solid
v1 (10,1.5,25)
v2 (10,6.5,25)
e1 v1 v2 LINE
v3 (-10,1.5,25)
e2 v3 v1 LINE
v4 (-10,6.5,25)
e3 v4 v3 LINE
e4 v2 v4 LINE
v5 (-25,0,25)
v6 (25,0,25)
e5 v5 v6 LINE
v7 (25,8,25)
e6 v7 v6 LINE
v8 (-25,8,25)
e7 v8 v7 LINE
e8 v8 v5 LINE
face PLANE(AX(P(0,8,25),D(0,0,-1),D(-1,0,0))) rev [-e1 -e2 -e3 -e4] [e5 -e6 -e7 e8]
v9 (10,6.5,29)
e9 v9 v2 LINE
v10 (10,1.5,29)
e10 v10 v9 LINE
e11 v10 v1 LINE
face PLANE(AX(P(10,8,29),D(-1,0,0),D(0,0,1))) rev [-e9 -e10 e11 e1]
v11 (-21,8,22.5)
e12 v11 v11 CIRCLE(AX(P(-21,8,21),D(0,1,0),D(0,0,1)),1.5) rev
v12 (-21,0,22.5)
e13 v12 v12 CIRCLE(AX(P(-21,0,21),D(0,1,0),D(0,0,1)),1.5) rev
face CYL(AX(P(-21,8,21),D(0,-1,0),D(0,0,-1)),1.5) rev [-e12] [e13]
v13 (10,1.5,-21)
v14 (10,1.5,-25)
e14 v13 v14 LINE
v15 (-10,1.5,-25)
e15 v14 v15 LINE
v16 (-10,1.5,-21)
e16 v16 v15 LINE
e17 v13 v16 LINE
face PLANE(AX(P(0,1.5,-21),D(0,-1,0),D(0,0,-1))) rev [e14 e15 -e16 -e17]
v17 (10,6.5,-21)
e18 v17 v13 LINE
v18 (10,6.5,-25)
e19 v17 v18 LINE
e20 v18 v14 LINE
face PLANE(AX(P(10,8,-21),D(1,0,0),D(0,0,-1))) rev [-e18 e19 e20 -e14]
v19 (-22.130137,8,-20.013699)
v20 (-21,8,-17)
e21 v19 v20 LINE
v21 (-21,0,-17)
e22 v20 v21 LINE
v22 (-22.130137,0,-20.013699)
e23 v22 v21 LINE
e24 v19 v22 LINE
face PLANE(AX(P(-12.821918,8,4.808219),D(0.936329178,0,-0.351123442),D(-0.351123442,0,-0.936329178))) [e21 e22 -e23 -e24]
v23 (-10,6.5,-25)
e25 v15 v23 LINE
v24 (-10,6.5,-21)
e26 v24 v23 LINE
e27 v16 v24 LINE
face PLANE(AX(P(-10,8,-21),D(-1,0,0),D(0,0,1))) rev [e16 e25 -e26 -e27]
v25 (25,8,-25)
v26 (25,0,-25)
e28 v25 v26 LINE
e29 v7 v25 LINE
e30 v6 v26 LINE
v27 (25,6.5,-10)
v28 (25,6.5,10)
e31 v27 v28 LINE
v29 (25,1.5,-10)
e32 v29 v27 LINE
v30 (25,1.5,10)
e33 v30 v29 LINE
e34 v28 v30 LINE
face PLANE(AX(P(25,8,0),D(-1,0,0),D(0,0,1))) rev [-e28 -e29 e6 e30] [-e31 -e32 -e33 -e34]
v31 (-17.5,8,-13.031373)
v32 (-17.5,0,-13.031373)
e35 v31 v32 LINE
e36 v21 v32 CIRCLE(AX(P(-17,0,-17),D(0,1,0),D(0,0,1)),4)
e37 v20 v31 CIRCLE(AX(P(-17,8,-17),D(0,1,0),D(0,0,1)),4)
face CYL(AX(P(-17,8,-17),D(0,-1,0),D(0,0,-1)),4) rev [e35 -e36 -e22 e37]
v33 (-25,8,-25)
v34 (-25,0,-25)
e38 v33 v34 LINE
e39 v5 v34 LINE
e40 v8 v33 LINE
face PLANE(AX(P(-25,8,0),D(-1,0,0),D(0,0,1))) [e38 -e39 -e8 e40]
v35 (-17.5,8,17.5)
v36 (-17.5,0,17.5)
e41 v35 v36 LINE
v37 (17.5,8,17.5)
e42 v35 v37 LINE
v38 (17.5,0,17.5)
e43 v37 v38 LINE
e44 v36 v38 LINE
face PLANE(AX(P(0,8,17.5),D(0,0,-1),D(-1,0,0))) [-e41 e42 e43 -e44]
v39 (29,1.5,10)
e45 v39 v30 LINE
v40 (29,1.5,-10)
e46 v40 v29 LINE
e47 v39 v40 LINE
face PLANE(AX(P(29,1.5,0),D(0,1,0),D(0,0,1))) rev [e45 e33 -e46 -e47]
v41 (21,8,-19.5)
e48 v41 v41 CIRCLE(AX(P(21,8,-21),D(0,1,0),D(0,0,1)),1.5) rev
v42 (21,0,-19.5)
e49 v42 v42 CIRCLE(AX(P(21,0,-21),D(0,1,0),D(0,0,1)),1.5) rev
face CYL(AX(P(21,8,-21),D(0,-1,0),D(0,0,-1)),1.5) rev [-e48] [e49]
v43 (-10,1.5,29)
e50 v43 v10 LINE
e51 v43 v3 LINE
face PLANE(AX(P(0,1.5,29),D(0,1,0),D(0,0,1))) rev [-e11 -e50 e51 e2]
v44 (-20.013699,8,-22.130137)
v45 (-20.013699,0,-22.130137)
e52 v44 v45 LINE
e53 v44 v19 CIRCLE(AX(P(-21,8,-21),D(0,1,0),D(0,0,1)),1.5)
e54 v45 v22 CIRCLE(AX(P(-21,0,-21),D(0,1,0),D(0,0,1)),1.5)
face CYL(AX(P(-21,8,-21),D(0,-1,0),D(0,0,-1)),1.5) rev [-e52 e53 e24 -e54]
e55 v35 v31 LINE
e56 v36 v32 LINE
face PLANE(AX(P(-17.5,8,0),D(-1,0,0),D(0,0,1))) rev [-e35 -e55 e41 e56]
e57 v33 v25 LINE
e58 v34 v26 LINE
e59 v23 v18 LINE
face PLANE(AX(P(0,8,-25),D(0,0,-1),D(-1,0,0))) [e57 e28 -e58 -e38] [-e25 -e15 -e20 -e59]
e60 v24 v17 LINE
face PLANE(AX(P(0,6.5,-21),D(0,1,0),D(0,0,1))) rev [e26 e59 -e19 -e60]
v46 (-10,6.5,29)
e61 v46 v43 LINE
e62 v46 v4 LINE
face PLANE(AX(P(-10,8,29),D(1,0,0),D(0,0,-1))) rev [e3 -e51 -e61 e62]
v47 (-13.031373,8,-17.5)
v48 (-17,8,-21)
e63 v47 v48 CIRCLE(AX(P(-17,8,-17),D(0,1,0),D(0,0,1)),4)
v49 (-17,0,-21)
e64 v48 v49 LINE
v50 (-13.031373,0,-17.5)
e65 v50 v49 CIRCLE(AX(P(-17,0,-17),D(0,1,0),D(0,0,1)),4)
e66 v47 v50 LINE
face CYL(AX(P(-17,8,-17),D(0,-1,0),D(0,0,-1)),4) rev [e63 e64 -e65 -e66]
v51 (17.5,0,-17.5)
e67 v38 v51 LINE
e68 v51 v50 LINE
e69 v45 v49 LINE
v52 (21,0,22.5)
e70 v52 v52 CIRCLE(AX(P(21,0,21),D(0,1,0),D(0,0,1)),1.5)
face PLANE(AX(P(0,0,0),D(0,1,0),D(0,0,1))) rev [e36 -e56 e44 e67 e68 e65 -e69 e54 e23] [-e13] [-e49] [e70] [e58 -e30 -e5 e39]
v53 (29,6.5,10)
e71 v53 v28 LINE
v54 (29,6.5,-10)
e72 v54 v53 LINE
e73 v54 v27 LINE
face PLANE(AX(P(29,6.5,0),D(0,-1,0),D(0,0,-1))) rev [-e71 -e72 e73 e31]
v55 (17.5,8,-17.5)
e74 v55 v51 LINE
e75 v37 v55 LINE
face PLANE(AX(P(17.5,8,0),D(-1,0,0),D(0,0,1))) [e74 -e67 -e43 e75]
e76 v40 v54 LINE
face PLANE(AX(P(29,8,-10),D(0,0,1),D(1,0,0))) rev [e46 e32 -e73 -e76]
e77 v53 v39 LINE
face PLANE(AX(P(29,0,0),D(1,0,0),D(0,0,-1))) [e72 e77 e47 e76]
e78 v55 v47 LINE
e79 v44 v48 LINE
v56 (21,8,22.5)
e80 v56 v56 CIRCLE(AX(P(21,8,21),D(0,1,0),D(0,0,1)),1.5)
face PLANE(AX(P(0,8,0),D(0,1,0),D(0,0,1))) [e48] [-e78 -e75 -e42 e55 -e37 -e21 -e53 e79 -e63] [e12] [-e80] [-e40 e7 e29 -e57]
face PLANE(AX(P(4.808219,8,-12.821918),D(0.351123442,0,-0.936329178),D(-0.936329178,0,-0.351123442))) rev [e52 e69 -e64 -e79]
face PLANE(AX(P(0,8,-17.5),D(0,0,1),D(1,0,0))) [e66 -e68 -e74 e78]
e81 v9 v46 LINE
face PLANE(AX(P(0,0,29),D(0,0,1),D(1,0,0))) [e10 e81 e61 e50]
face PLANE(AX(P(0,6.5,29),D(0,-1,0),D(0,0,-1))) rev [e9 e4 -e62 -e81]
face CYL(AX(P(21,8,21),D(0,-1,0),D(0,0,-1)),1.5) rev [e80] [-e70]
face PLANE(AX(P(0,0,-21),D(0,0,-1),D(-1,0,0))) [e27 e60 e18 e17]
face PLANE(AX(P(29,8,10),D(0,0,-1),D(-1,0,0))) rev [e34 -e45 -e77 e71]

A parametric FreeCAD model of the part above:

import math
import FreeCAD as App
import Part
import Sketcher

V = App.Vector

doc = App.newDocument("Part")
body = doc.addObject("PartDesign::Body", "Body")

sketch1 = body.newObject("Sketcher::SketchObject", "Sketch")
sketch1.AttachmentSupport = (doc.getObject("XZ_Plane"), [""])
sketch1.MapMode = "FlatFace"
sketch1.addGeometry([
    Part.LineSegment(V(-25, -25, 0), V(-25, 25, 0)),
    Part.LineSegment(V(-25, 25, 0), V(25, 25, 0)),
    Part.LineSegment(V(25, 25, 0), V(25, -25, 0)),
    Part.LineSegment(V(25, -25, 0), V(-25, -25, 0)),
    Part.Circle(V(-21, 21, 0), V(0, 0, 1), 1.5),
    Part.Circle(V(21, 21, 0), V(0, 0, 1), 1.5),
    Part.ArcOfCircle(Part.Circle(V(-17, -17, 0), V(0, 0, 1), 4), math.radians(-90), math.radians(-7)),
    Part.LineSegment(V(-13, -17.5, 0), V(17.5, -17.5, 0)),
    Part.LineSegment(V(17.5, -17.5, 0), V(17.5, 17.5, 0)),
    Part.LineSegment(V(17.5, 17.5, 0), V(-17.5, 17.5, 0)),
    Part.LineSegment(V(-17.5, 17.5, 0), V(-17.5, -13, 0)),
    Part.ArcOfCircle(Part.Circle(V(-17, -17, 0), V(0, 0, 1), 4), math.radians(97), math.radians(180)),
    Part.LineSegment(V(-21, -17, 0), V(-22.1, -20, 0)),
    Part.ArcOfCircle(Part.Circle(V(-21, -21, 0), V(0, 0, 1), 1.5), math.radians(139), math.radians(311)),
    Part.LineSegment(V(-20, -22.1, 0), V(-17, -21, 0)),
    Part.Circle(V(21, -21, 0), V(0, 0, 1), 1.5),
], False)
sketch1.addConstraint([
    Sketcher.Constraint("Coincident", 0, 2, 1, 1),
    Sketcher.Constraint("Coincident", 1, 2, 2, 1),
    Sketcher.Constraint("Coincident", 2, 2, 3, 1),
    Sketcher.Constraint("Coincident", 3, 2, 0, 1),
    Sketcher.Constraint("Coincident", 6, 2, 7, 1),
    Sketcher.Constraint("Coincident", 7, 2, 8, 1),
    Sketcher.Constraint("Coincident", 8, 2, 9, 1),
    Sketcher.Constraint("Coincident", 9, 2, 10, 1),
    Sketcher.Constraint("Coincident", 10, 2, 11, 1),
    Sketcher.Constraint("Coincident", 11, 2, 12, 1),
    Sketcher.Constraint("Coincident", 12, 2, 13, 1),
    Sketcher.Constraint("Coincident", 13, 2, 14, 1),
    Sketcher.Constraint("Coincident", 14, 2, 6, 1),
    Sketcher.Constraint("Vertical", 0),
    Sketcher.Constraint("Horizontal", 1),
    Sketcher.Constraint("Vertical", 2),
    Sketcher.Constraint("Horizontal", 3),
    Sketcher.Constraint("Horizontal", 7),
    Sketcher.Constraint("Vertical", 8),
    Sketcher.Constraint("Horizontal", 9),
    Sketcher.Constraint("Vertical", 10),
    Sketcher.Constraint("Coincident", 11, 3, 6, 3),
    Sketcher.Constraint("Equal", 4, 5),
    Sketcher.Constraint("Equal", 6, 11),
    Sketcher.Constraint("Equal", 5, 13),
    Sketcher.Constraint("Equal", 13, 15),
    Sketcher.Constraint("Symmetric", 5, 3, 13, 3, -1, 1),
    Sketcher.Constraint("Symmetric", 4, 3, 15, 3, -1, 1),
    Sketcher.Constraint("Symmetric", 0, 2, 2, 2, -1, 1),
    Sketcher.Constraint("Symmetric", 7, 2, 9, 2, -1, 1),
    Sketcher.Constraint("Symmetric", 4, 3, 5, 3, -2),
    Sketcher.Constraint("Horizontal", 6, 3, 11, 2),
    Sketcher.Constraint("Horizontal", 15, 3, 14, 2),
    Sketcher.Constraint("Vertical", 13, 3, 11, 2),
    Sketcher.Constraint("Vertical", 11, 3, 14, 2),
    Sketcher.Constraint("Equal", 3, 0),
    Sketcher.Constraint("Equal", 9, 8),
    Sketcher.Constraint("Equal", 7, 10),
    Sketcher.Constraint("Equal", 12, 14),
    Sketcher.Constraint("Diameter", 4, 3.0),
    Sketcher.Constraint("Radius", 6, 4.0),
    Sketcher.Constraint("DistanceX", 1, 1, 1, 2, 50.0),
    Sketcher.Constraint("DistanceX", 9, 2, 9, 1, 35.0),
    Sketcher.Constraint("DistanceX", 4, 3, -1, 1, 21.0),
    Sketcher.Constraint("DistanceY", 12, 2, -1, 1, 20.013699),
])
pad1 = body.newObject("PartDesign::Pad", "Pad")
pad1.Profile = sketch1
pad1.Length = 8
pad1.Reversed = True

sketch2 = body.newObject("Sketcher::SketchObject", "Sketch001")
sketch2.AttachmentSupport = (doc.getObject("XY_Plane"), [""])
sketch2.MapMode = "FlatFace"
sketch2.AttachmentOffset = App.Placement(V(0, 0, -25), App.Rotation())
sketch2.addGeometry([
    Part.LineSegment(V(-10, 6, 0), V(-10, 2, 0)),
    Part.LineSegment(V(-10, 2, 0), V(10, 2, 0)),
    Part.LineSegment(V(10, 2, 0), V(10, 6, 0)),
    Part.LineSegment(V(10, 6, 0), V(-10, 6, 0)),
], False)
sketch2.addConstraint([
    Sketcher.Constraint("Coincident", 0, 2, 1, 1),
    Sketcher.Constraint("Coincident", 1, 2, 2, 1),
    Sketcher.Constraint("Coincident", 2, 2, 3, 1),
    Sketcher.Constraint("Coincident", 3, 2, 0, 1),
    Sketcher.Constraint("Vertical", 0),
    Sketcher.Constraint("Horizontal", 1),
    Sketcher.Constraint("Vertical", 2),
    Sketcher.Constraint("Horizontal", 3),
    Sketcher.Constraint("DistanceX", 1, 1, 1, 2, 20.0),
    Sketcher.Constraint("DistanceY", 0, 2, 0, 1, 5.0),
    Sketcher.Constraint("DistanceX", 0, 2, -1, 1, 10.0),
    Sketcher.Constraint("DistanceY", -1, 1, 0, 2, 1.5),
])
pocket1 = body.newObject("PartDesign::Pocket", "Pocket")
pocket1.Profile = sketch2
pocket1.Length = 4
pocket1.Reversed = True

sketch3 = body.newObject("Sketcher::SketchObject", "Sketch002")
sketch3.AttachmentSupport = (doc.getObject("XY_Plane"), [""])
sketch3.MapMode = "FlatFace"
sketch3.AttachmentOffset = App.Placement(V(0, 0, 25), App.Rotation())
sketch3.addGeometry([
    Part.LineSegment(V(-10, 6, 0), V(-10, 2, 0)),
    Part.LineSegment(V(-10, 2, 0), V(10, 2, 0)),
    Part.LineSegment(V(10, 2, 0), V(10, 6, 0)),
    Part.LineSegment(V(10, 6, 0), V(-10, 6, 0)),
], False)
sketch3.addConstraint([
    Sketcher.Constraint("Coincident", 0, 2, 1, 1),
    Sketcher.Constraint("Coincident", 1, 2, 2, 1),
    Sketcher.Constraint("Coincident", 2, 2, 3, 1),
    Sketcher.Constraint("Coincident", 3, 2, 0, 1),
    Sketcher.Constraint("Vertical", 0),
    Sketcher.Constraint("Horizontal", 1),
    Sketcher.Constraint("Vertical", 2),
    Sketcher.Constraint("Horizontal", 3),
    Sketcher.Constraint("DistanceX", 1, 1, 1, 2, 20.0),
    Sketcher.Constraint("DistanceY", 0, 2, 0, 1, 5.0),
    Sketcher.Constraint("DistanceX", 0, 2, -1, 1, 10.0),
    Sketcher.Constraint("DistanceY", -1, 1, 0, 2, 1.5),
])
pad2 = body.newObject("PartDesign::Pad", "Pad001")
pad2.Profile = sketch3
pad2.Length = 4

sketch4 = body.newObject("Sketcher::SketchObject", "Sketch003")
sketch4.AttachmentSupport = (doc.getObject("YZ_Plane"), [""])
sketch4.MapMode = "FlatFace"
sketch4.AttachmentOffset = App.Placement(V(0, 0, 25), App.Rotation())
sketch4.addGeometry([
    Part.LineSegment(V(6, 10, 0), V(2, 10, 0)),
    Part.LineSegment(V(2, 10, 0), V(2, -10, 0)),
    Part.LineSegment(V(2, -10, 0), V(6, -10, 0)),
    Part.LineSegment(V(6, -10, 0), V(6, 10, 0)),
], False)
sketch4.addConstraint([
    Sketcher.Constraint("Coincident", 0, 2, 1, 1),
    Sketcher.Constraint("Coincident", 1, 2, 2, 1),
    Sketcher.Constraint("Coincident", 2, 2, 3, 1),
    Sketcher.Constraint("Coincident", 3, 2, 0, 1),
    Sketcher.Constraint("Horizontal", 0),
    Sketcher.Constraint("Vertical", 1),
    Sketcher.Constraint("Horizontal", 2),
    Sketcher.Constraint("Vertical", 3),
    Sketcher.Constraint("DistanceX", 0, 2, 0, 1, 5.0),
    Sketcher.Constraint("DistanceY", 1, 2, 1, 1, 20.0),
    Sketcher.Constraint("DistanceY", -1, 1, 0, 2, 10.0),
    Sketcher.Constraint("DistanceX", -1, 1, 0, 2, 1.5),
])
pad3 = body.newObject("PartDesign::Pad", "Pad002")
pad3.Profile = sketch4
pad3.Length = 4

doc.recompute()
